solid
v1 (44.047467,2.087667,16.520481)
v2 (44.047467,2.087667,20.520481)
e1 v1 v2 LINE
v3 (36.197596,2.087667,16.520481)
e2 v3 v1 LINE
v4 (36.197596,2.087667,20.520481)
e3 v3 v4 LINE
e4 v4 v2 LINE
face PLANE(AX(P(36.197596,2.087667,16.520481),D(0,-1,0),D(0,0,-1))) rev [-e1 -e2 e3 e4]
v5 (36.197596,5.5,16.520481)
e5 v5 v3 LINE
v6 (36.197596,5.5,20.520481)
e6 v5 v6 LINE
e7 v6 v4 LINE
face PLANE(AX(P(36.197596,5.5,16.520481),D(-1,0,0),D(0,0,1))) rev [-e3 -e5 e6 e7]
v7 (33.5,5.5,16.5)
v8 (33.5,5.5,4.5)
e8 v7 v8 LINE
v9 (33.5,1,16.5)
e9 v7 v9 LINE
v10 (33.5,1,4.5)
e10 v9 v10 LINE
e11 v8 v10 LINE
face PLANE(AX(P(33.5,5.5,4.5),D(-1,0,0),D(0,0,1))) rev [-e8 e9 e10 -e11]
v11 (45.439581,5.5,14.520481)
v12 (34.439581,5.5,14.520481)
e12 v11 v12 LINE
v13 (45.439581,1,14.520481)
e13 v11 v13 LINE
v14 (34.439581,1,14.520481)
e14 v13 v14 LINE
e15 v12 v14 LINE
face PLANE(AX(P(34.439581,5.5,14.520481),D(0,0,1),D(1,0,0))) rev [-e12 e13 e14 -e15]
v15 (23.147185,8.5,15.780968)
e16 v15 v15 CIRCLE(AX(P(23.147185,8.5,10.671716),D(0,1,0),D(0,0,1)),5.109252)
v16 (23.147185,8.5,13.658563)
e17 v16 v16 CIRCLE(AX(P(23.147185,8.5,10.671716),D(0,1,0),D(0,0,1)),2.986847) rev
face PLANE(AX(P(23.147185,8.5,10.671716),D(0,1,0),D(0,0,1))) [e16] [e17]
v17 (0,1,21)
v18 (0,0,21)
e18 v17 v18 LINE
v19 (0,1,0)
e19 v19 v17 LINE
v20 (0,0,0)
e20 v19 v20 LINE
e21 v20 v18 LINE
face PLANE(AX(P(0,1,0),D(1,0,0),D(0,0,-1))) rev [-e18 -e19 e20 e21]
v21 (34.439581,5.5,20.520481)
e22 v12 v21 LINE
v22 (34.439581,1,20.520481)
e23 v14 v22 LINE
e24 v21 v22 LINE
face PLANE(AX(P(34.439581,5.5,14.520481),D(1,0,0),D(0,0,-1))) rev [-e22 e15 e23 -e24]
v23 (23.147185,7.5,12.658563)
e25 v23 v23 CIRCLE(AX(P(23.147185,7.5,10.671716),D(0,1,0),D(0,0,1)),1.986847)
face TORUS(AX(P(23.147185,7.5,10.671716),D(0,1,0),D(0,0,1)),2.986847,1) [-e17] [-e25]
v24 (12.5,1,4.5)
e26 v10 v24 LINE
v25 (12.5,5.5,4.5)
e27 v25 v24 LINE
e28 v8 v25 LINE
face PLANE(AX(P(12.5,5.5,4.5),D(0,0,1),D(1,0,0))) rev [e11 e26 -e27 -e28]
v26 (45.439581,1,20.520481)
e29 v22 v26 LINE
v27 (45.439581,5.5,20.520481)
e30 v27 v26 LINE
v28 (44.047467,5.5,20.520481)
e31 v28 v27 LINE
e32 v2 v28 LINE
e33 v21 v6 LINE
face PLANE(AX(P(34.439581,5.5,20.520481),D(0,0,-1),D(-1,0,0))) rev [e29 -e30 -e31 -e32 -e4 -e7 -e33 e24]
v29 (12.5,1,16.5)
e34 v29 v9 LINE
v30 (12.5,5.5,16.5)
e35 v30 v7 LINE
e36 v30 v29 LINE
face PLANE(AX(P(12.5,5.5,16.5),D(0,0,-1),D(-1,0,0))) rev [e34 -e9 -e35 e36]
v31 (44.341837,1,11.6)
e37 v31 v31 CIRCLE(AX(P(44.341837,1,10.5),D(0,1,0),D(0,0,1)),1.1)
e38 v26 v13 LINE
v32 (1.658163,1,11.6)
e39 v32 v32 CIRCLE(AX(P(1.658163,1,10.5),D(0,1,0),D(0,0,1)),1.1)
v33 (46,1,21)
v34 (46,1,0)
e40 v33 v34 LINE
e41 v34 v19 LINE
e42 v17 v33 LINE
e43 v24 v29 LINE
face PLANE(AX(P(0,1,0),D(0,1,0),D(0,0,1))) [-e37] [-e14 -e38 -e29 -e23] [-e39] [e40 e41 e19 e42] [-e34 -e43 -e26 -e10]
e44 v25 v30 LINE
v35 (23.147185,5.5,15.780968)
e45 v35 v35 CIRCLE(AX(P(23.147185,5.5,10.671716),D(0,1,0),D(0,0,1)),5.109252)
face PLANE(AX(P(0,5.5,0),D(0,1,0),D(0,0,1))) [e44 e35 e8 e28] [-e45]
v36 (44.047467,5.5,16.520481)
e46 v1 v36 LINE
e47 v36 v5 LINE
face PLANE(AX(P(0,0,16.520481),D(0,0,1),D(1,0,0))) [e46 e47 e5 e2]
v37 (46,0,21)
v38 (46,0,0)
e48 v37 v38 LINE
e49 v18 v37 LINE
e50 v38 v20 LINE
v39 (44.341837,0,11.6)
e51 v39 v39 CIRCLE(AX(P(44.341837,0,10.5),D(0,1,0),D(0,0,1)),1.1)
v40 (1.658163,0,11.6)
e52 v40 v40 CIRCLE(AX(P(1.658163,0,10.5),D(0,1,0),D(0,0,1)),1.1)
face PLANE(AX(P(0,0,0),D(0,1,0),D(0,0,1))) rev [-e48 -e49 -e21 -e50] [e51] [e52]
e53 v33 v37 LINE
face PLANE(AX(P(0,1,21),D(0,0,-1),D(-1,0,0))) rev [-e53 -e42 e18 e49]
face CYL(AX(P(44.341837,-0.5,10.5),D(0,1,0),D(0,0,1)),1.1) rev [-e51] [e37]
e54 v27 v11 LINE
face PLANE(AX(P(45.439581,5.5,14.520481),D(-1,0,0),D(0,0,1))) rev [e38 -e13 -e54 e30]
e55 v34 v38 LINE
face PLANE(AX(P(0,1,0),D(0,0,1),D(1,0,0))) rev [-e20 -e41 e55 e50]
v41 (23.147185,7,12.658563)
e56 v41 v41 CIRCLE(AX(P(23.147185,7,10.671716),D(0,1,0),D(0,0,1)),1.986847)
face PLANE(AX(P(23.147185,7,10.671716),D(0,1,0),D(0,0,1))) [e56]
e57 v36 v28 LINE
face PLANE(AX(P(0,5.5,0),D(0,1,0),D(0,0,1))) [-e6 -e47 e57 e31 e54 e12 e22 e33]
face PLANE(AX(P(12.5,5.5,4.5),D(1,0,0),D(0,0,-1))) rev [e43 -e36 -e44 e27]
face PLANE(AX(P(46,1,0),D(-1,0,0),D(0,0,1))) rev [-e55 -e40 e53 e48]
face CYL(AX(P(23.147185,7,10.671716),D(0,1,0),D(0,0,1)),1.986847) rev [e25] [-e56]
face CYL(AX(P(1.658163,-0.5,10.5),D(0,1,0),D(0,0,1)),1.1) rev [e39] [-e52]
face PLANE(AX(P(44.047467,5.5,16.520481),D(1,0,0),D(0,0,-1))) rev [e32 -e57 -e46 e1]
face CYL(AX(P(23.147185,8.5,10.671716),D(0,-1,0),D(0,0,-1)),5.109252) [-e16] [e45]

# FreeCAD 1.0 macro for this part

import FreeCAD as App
import Part
import Sketcher
from FreeCAD import Vector


def edges_at(feature, points):
    """Names of the edges that pass closest to the given points."""
    edges = feature.Shape.Edges
    near = lambda p: min(range(len(edges)), key=lambda i: edges[i].distToShape(Part.Vertex(*p))[0])
    return sorted({f"Edge{near(p) + 1}" for p in points})

doc = App.newDocument("Part")
body = doc.addObject("PartDesign::Body", "Body")

sketch1 = body.newObject("Sketcher::SketchObject", "Sketch")
sketch1.AttachmentSupport = (doc.getObject("XZ_Plane"), [""])
sketch1.MapMode = "FlatFace"
sketch1.addGeometry([
    Part.LineSegment(Vector(0, 0, 0), Vector(0, 21, 0)),
    Part.LineSegment(Vector(0, 21, 0), Vector(46, 21, 0)),
    Part.LineSegment(Vector(46, 21, 0), Vector(46, 0, 0)),
    Part.LineSegment(Vector(46, 0, 0), Vector(0, 0, 0)),
], False)
sketch1.addConstraint([
    Sketcher.Constraint("Coincident", 0, 2, 1, 1),
    Sketcher.Constraint("Coincident", 1, 2, 2, 1),
    Sketcher.Constraint("Coincident", 2, 2, 3, 1),
    Sketcher.Constraint("Coincident", 3, 2, 0, 1),
    Sketcher.Constraint("Vertical", 0),
    Sketcher.Constraint("Horizontal", 1),
    Sketcher.Constraint("Vertical", 2),
    Sketcher.Constraint("Horizontal", 3),
    Sketcher.Constraint("Coincident", 3, 2, -1, 1),
    Sketcher.Constraint("DistanceX", 1, 1, 1, 2, 46.0),
    Sketcher.Constraint("DistanceY", 0, 1, 0, 2, 21.0),
])
pad1 = body.newObject("PartDesign::Pad", "Pad")
pad1.Profile = sketch1
pad1.Length = 1
pad1.Reversed = True

sketch2 = body.newObject("Sketcher::SketchObject", "Sketch001")
sketch2.AttachmentSupport = (doc.getObject("XZ_Plane"), [""])
sketch2.MapMode = "FlatFace"
sketch2.AttachmentOffset = App.Placement(Vector(0, 0, -1), App.Rotation())
sketch2.addGeometry([
    Part.LineSegment(Vector(12.5, 4.5, 0), Vector(12.5, 16.5, 0)),
    Part.LineSegment(Vector(12.5, 16.5, 0), Vector(33.5, 16.5, 0)),
    Part.LineSegment(Vector(33.5, 16.5, 0), Vector(33.5, 4.5, 0)),
    Part.LineSegment(Vector(33.5, 4.5, 0), Vector(12.5, 4.5, 0)),
    Part.LineSegment(Vector(34.439581, 14.520481, 0), Vector(34.439581, 20.520481, 0)),
    Part.LineSegment(Vector(34.439581, 20.520481, 0), Vector(45.439581, 20.520481, 0)),
    Part.LineSegment(Vector(45.439581, 20.520481, 0), Vector(45.439581, 14.520481, 0)),
    Part.LineSegment(Vector(45.439581, 14.520481, 0), Vector(34.439581, 14.520481, 0)),
], False)
sketch2.addConstraint([
    Sketcher.Constraint("Coincident", 0, 2, 1, 1),
    Sketcher.Constraint("Coincident", 1, 2, 2, 1),
    Sketcher.Constraint("Coincident", 2, 2, 3, 1),
    Sketcher.Constraint("Coincident", 3, 2, 0, 1),
    Sketcher.Constraint("Coincident", 4, 2, 5, 1),
    Sketcher.Constraint("Coincident", 5, 2, 6, 1),
    Sketcher.Constraint("Coincident", 6, 2, 7, 1),
    Sketcher.Constraint("Coincident", 7, 2, 4, 1),
    Sketcher.Constraint("Vertical", 0),
    Sketcher.Constraint("Horizontal", 1),
    Sketcher.Constraint("Vertical", 2),
    Sketcher.Constraint("Horizontal", 3),
    Sketcher.Constraint("Vertical", 4),
    Sketcher.Constraint("Horizontal", 5),
    Sketcher.Constraint("Vertical", 6),
    Sketcher.Constraint("Horizontal", 7),
    Sketcher.Constraint("DistanceX", 1, 1, 1, 2, 21.0),
    Sketcher.Constraint("DistanceX", 5, 1, 5, 2, 11.0),
    Sketcher.Constraint("DistanceY", 0, 1, 0, 2, 12.0),
    Sketcher.Constraint("DistanceY", 4, 1, 4, 2, 6.0),
    Sketcher.Constraint("DistanceX", -1, 1, 0, 2, 12.5),
    Sketcher.Constraint("DistanceY", -1, 1, 0, 2, 16.5),
    Sketcher.Constraint("DistanceX", -1, 1, 4, 2, 34.439581),
    Sketcher.Constraint("DistanceY", -1, 1, 4, 2, 20.520481),
])
pad2 = body.newObject("PartDesign::Pad", "Pad001")
pad2.Profile = sketch2
pad2.Length = 4.5
pad2.Reversed = True

sketch3 = body.newObject("Sketcher::SketchObject", "Sketch002")
sketch3.AttachmentSupport = (doc.getObject("XY_Plane"), [""])
sketch3.MapMode = "FlatFace"
sketch3.AttachmentOffset = App.Placement(Vector(0, 0, 20.520481), App.Rotation())
sketch3.addGeometry([
    Part.LineSegment(Vector(36.197596, 5.5, 0), Vector(36.197596, 2.087667, 0)),
    Part.LineSegment(Vector(36.197596, 2.087667, 0), Vector(44.047467, 2.087667, 0)),
    Part.LineSegment(Vector(44.047467, 2.087667, 0), Vector(44.047467, 5.5, 0)),
    Part.LineSegment(Vector(44.047467, 5.5, 0), Vector(36.197596, 5.5, 0)),
], False)
sketch3.addConstraint([
    Sketcher.Constraint("Coincident", 0, 2, 1, 1),
    Sketcher.Constraint("Coincident", 1, 2, 2, 1),
    Sketcher.Constraint("Coincident", 2, 2, 3, 1),
    Sketcher.Constraint("Coincident", 3, 2, 0, 1),
    Sketcher.Constraint("Vertical", 0),
    Sketcher.Constraint("Horizontal", 1),
    Sketcher.Constraint("Vertical", 2),
    Sketcher.Constraint("Horizontal", 3),
    Sketcher.Constraint("DistanceY", -1, 1, 2, 2, 5.5),
    Sketcher.Constraint("DistanceX", 1, 1, 1, 2, 7.849871),
    Sketcher.Constraint("DistanceY", 0, 2, 0, 1, 3.412333),
    Sketcher.Constraint("DistanceX", -1, 1, 0, 2, 36.197596),
])
pocket1 = body.newObject("PartDesign::Pocket", "Pocket")
pocket1.Profile = sketch3
pocket1.Length = 4

sketch4 = body.newObject("Sketcher::SketchObject", "Sketch003")
sketch4.AttachmentSupport = (doc.getObject("XZ_Plane"), [""])
sketch4.MapMode = "FlatFace"
sketch4.AttachmentOffset = App.Placement(Vector(0, 0, -5.5), App.Rotation())
sketch4.addGeometry(Part.Circle(Vector(23.147185, 10.671716, 0), Vector(0, 0, 1), 5.109252), False)
sketch4.addConstraint([
    Sketcher.Constraint("Diameter", 0, 10.218504),
    Sketcher.Constraint("DistanceX", -1, 1, 0, 3, 23.147185),
    Sketcher.Constraint("DistanceY", -1, 1, 0, 3, 10.671716),
])
pad3 = body.newObject("PartDesign::Pad", "Pad002")
pad3.Profile = sketch4
pad3.Length = 3
pad3.Reversed = True

sketch5 = body.newObject("Sketcher::SketchObject", "Sketch004")
sketch5.AttachmentSupport = (doc.getObject("XZ_Plane"), [""])
sketch5.MapMode = "FlatFace"
sketch5.AttachmentOffset = App.Placement(Vector(0, 0, -8.5), App.Rotation())
sketch5.addGeometry(Part.Circle(Vector(23.147185, 10.671716, 0), Vector(0, 0, 1), 1.986847), False)
sketch5.addConstraint([
    Sketcher.Constraint("Diameter", 0, 3.973694),
    Sketcher.Constraint("DistanceX", -1, 1, 0, 3, 23.147185),
    Sketcher.Constraint("DistanceY", -1, 1, 0, 3, 10.671716),
])
pocket2 = body.newObject("PartDesign::Pocket", "Pocket001")
pocket2.Profile = sketch5
pocket2.Length = 1.5
pocket2.Reversed = True
doc.recompute()

fillet = body.newObject("PartDesign::Fillet", "Fillet")
fillet.Base = (pocket2, edges_at(pocket2, [(21.16, 8.5, 10.672)]))
fillet.Radius = 1

sketch6 = body.newObject("Sketcher::SketchObject", "Sketch005")
sketch6.AttachmentSupport = (doc.getObject("XZ_Plane"), [""])
sketch6.MapMode = "FlatFace"
sketch6.AttachmentOffset = App.Placement(Vector(0, 0, -1), App.Rotation())
sketch6.addGeometry([
    Part.Circle(Vector(1.658163, 10.5, 0), Vector(0, 0, 1), 1.1),
    Part.Circle(Vector(44.341837, 10.5, 0), Vector(0, 0, 1), 1.1),
], False)
sketch6.addConstraint([
    Sketcher.Constraint("Equal", 0, 1),
    Sketcher.Constraint("Horizontal", 0, 3, 1, 3),
    Sketcher.Constraint("Diameter", 0, 2.2),
    Sketcher.Constraint("DistanceY", -1, 1, 0, 3, 10.5),
    Sketcher.Constraint("DistanceX", -1, 1, 0, 3, 1.658163),
    Sketcher.Constraint("DistanceX", -1, 1, 1, 3, 44.341837),
])
pocket3 = body.newObject("PartDesign::Pocket", "Pocket002")
pocket3.Profile = sketch6
pocket3.Length = 1.5
pocket3.Reversed = True

doc.recompute()
